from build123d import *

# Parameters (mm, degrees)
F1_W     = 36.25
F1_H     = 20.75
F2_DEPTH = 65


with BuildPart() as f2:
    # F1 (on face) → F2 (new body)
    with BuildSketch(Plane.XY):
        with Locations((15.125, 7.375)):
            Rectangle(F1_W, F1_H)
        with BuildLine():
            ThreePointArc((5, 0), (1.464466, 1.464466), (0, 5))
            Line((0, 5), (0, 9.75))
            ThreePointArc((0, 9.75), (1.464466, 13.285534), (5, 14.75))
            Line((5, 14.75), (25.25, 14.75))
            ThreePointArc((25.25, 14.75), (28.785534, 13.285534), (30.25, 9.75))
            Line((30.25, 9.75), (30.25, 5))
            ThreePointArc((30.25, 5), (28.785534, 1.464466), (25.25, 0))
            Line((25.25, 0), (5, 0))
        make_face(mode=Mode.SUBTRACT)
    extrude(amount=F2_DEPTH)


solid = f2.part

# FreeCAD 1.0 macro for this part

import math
import FreeCAD as App
import Part
import Sketcher
Q = App.Units.Quantity


def add_polygon(sketch, points):
    """Adds a closed chain of lines whose ends are joined by coincident constraints."""
    first, n = sketch.GeometryCount, len(points)
    for a, b in zip(points, points[1:] + points[:1]):
        sketch.addGeometry(Part.LineSegment(App.Vector(*a, 0), App.Vector(*b, 0)), False)
    for i in range(n):
        sketch.addConstraint(Sketcher.Constraint("Coincident", first + i, 2, first + (i + 1) % n, 1))

doc = App.newDocument("Part")
body = doc.addObject("PartDesign::Body", "Body")

sketch1 = body.newObject("Sketcher::SketchObject", "Sketch")
sketch1.AttachmentSupport = (doc.getObject("XY_Plane"), [""])
sketch1.MapMode = "FlatFace"
add_polygon(sketch1, [(-3, 17.8), (-3, -3), (33.2, -3), (33.2, 17.8)])
sketch1.addGeometry(Part.LineSegment(App.Vector(25.2, 0, 0), App.Vector(5, 0, 0)), False)
sketch1.addGeometry(Part.ArcOfCircle(Part.Circle(App.Vector(5, 5, 0), App.Vector(0, 0, 1), 5), math.radians(180), math.radians(270)), False)
sketch1.addGeometry(Part.LineSegment(App.Vector(0, 5, 0), App.Vector(0, 9.8, 0)), False)
sketch1.addGeometry(Part.ArcOfCircle(Part.Circle(App.Vector(5, 9.8, 0), App.Vector(0, 0, 1), 5), math.radians(90), math.radians(180)), False)
sketch1.addGeometry(Part.LineSegment(App.Vector(5, 14.8, 0), App.Vector(25.2, 14.8, 0)), False)
sketch1.addGeometry(Part.ArcOfCircle(Part.Circle(App.Vector(25.3, 9.8, 0), App.Vector(0, 0, 1), 5), math.radians(0), math.radians(90)), False)
sketch1.addGeometry(Part.LineSegment(App.Vector(30.2, 9.8, 0), App.Vector(30.2, 5, 0)), False)
sketch1.addGeometry(Part.ArcOfCircle(Part.Circle(App.Vector(25.3, 5, 0), App.Vector(0, 0, 1), 5), math.radians(-90), math.radians(0)), False)
sketch1.addConstraint(Sketcher.Constraint("Tangent", 4, 2, 5, 2))
sketch1.addConstraint(Sketcher.Constraint("Tangent", 5, 1, 6, 1))
sketch1.addConstraint(Sketcher.Constraint("Tangent", 6, 2, 7, 2))
sketch1.addConstraint(Sketcher.Constraint("Tangent", 7, 1, 8, 1))
sketch1.addConstraint(Sketcher.Constraint("Tangent", 8, 2, 9, 2))
sketch1.addConstraint(Sketcher.Constraint("Tangent", 9, 1, 10, 1))
sketch1.addConstraint(Sketcher.Constraint("Tangent", 10, 2, 11, 2))
sketch1.addConstraint(Sketcher.Constraint("Tangent", 11, 1, 4, 1))
sketch1.addConstraint(Sketcher.Constraint("Vertical", 0))
sketch1.addConstraint(Sketcher.Constraint("Horizontal", 1))
sketch1.addConstraint(Sketcher.Constraint("Vertical", 2))
sketch1.addConstraint(Sketcher.Constraint("Horizontal", 3))
sketch1.addConstraint(Sketcher.Constraint("Horizontal", 4))
sketch1.addConstraint(Sketcher.Constraint("Vertical", 6))
sketch1.addConstraint(Sketcher.Constraint("Horizontal", 8))
sketch1.addConstraint(Sketcher.Constraint("Vertical", 10))
sketch1.addConstraint(Sketcher.Constraint("Equal", 5, 7))
sketch1.addConstraint(Sketcher.Constraint("Equal", 7, 9))
sketch1.addConstraint(Sketcher.Constraint("Equal", 9, 11))
sketch1.addConstraint(Sketcher.Constraint("PointOnObject", 4, 2, -1))
sketch1.addConstraint(Sketcher.Constraint("PointOnObject", 5, 1, -2))
sketch1.addConstraint(Sketcher.Constraint("Radius", 5, Q("5 mm")))
sketch1.addConstraint(Sketcher.Constraint("DistanceX", 0, 2, -1, 1, Q("3 mm")))
sketch1.addConstraint(Sketcher.Constraint("DistanceY", 0, 2, -1, 1, Q("3 mm")))
sketch1.addConstraint(Sketcher.Constraint("DistanceX", 11, 3, 1, 2, Q("8 mm")))
sketch1.addConstraint(Sketcher.Constraint("DistanceY", 9, 3, 2, 2, Q("8 mm")))
sketch1.addConstraint(Sketcher.Constraint("DistanceX", 1, 1, 1, 2, Q("36.25 mm")))
sketch1.addConstraint(Sketcher.Constraint("DistanceY", 0, 2, 0, 1, Q("20.75 mm")))
pad1 = body.newObject("PartDesign::Pad", "Pad")
pad1.Profile = sketch1
pad1.Length = 65

doc.recompute()
